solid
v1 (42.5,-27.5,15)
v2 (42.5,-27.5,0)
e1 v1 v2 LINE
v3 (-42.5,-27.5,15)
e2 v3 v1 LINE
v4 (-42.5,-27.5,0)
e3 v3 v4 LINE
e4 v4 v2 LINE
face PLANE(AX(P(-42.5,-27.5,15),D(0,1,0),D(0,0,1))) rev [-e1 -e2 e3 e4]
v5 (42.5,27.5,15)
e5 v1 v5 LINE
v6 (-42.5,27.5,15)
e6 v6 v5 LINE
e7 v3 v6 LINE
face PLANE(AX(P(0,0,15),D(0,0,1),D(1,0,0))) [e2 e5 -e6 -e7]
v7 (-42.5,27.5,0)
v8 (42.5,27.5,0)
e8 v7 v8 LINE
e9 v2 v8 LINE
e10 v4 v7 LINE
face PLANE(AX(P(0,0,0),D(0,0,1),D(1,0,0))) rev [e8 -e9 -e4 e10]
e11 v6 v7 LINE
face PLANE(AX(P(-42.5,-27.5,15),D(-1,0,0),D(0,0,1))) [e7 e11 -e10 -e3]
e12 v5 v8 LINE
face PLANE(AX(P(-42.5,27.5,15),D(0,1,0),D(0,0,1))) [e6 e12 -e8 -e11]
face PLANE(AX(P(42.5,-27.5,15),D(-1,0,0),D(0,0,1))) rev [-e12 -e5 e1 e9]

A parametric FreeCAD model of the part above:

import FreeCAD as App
import Part
import Sketcher

V = App.Vector


def add_polygon(sketch, points):
    """Adds a closed chain of lines whose ends are joined by coincident constraints."""
    first, n = sketch.GeometryCount, len(points)
    for a, b in zip(points, points[1:] + points[:1]):
        sketch.addGeometry(Part.LineSegment(App.Vector(*a, 0), App.Vector(*b, 0)), False)
    for i in range(n):
        sketch.addConstraint(Sketcher.Constraint("Coincident", first + i, 2, first + (i + 1) % n, 1))

doc = App.newDocument("Part")
params = doc.addObject("Spreadsheet::Sheet", "Params")
for row, (alias, value) in enumerate([
    ("sketch1_width", "85 mm"),
    ("sketch1_height", "55 mm"),
    ("pad1_length", "15 mm"),
], start=1):
    params.set(f"A{row}", alias)
    params.set(f"B{row}", "=" + value)
    params.setAlias(f"B{row}", alias)

body = doc.addObject("PartDesign::Body", "Body")

# Sketch on XY plane
sketch1 = body.newObject("Sketcher::SketchObject", "Sketch")
sketch1.AttachmentSupport = (doc.getObject("XY_Plane"), [""])
sketch1.MapMode = "FlatFace"
add_polygon(sketch1, [(-42, 28), (-42, -28), (42, -28), (42, 28)])  # lines 0-3
sketch1.addConstraint([
    Sketcher.Constraint("Vertical", 0),
    Sketcher.Constraint("Horizontal", 1),
    Sketcher.Constraint("Vertical", 2),
    Sketcher.Constraint("Horizontal", 3),
    Sketcher.Constraint("Symmetric", 0, 2, 2, 2, -1, 1),
    Sketcher.Constraint("DistanceX", 1, 1, 1, 2, 85.0),
    Sketcher.Constraint("DistanceY", 0, 2, 0, 1, 55.0),
])
sketch1.setExpression("Constraints[9]", "Params.sketch1_width")
sketch1.setExpression("Constraints[10]", "Params.sketch1_height")
pad1 = body.newObject("PartDesign::Pad", "Pad")
pad1.Profile = sketch1
pad1.setExpression("Length", "Params.pad1_length")

doc.recompute()
